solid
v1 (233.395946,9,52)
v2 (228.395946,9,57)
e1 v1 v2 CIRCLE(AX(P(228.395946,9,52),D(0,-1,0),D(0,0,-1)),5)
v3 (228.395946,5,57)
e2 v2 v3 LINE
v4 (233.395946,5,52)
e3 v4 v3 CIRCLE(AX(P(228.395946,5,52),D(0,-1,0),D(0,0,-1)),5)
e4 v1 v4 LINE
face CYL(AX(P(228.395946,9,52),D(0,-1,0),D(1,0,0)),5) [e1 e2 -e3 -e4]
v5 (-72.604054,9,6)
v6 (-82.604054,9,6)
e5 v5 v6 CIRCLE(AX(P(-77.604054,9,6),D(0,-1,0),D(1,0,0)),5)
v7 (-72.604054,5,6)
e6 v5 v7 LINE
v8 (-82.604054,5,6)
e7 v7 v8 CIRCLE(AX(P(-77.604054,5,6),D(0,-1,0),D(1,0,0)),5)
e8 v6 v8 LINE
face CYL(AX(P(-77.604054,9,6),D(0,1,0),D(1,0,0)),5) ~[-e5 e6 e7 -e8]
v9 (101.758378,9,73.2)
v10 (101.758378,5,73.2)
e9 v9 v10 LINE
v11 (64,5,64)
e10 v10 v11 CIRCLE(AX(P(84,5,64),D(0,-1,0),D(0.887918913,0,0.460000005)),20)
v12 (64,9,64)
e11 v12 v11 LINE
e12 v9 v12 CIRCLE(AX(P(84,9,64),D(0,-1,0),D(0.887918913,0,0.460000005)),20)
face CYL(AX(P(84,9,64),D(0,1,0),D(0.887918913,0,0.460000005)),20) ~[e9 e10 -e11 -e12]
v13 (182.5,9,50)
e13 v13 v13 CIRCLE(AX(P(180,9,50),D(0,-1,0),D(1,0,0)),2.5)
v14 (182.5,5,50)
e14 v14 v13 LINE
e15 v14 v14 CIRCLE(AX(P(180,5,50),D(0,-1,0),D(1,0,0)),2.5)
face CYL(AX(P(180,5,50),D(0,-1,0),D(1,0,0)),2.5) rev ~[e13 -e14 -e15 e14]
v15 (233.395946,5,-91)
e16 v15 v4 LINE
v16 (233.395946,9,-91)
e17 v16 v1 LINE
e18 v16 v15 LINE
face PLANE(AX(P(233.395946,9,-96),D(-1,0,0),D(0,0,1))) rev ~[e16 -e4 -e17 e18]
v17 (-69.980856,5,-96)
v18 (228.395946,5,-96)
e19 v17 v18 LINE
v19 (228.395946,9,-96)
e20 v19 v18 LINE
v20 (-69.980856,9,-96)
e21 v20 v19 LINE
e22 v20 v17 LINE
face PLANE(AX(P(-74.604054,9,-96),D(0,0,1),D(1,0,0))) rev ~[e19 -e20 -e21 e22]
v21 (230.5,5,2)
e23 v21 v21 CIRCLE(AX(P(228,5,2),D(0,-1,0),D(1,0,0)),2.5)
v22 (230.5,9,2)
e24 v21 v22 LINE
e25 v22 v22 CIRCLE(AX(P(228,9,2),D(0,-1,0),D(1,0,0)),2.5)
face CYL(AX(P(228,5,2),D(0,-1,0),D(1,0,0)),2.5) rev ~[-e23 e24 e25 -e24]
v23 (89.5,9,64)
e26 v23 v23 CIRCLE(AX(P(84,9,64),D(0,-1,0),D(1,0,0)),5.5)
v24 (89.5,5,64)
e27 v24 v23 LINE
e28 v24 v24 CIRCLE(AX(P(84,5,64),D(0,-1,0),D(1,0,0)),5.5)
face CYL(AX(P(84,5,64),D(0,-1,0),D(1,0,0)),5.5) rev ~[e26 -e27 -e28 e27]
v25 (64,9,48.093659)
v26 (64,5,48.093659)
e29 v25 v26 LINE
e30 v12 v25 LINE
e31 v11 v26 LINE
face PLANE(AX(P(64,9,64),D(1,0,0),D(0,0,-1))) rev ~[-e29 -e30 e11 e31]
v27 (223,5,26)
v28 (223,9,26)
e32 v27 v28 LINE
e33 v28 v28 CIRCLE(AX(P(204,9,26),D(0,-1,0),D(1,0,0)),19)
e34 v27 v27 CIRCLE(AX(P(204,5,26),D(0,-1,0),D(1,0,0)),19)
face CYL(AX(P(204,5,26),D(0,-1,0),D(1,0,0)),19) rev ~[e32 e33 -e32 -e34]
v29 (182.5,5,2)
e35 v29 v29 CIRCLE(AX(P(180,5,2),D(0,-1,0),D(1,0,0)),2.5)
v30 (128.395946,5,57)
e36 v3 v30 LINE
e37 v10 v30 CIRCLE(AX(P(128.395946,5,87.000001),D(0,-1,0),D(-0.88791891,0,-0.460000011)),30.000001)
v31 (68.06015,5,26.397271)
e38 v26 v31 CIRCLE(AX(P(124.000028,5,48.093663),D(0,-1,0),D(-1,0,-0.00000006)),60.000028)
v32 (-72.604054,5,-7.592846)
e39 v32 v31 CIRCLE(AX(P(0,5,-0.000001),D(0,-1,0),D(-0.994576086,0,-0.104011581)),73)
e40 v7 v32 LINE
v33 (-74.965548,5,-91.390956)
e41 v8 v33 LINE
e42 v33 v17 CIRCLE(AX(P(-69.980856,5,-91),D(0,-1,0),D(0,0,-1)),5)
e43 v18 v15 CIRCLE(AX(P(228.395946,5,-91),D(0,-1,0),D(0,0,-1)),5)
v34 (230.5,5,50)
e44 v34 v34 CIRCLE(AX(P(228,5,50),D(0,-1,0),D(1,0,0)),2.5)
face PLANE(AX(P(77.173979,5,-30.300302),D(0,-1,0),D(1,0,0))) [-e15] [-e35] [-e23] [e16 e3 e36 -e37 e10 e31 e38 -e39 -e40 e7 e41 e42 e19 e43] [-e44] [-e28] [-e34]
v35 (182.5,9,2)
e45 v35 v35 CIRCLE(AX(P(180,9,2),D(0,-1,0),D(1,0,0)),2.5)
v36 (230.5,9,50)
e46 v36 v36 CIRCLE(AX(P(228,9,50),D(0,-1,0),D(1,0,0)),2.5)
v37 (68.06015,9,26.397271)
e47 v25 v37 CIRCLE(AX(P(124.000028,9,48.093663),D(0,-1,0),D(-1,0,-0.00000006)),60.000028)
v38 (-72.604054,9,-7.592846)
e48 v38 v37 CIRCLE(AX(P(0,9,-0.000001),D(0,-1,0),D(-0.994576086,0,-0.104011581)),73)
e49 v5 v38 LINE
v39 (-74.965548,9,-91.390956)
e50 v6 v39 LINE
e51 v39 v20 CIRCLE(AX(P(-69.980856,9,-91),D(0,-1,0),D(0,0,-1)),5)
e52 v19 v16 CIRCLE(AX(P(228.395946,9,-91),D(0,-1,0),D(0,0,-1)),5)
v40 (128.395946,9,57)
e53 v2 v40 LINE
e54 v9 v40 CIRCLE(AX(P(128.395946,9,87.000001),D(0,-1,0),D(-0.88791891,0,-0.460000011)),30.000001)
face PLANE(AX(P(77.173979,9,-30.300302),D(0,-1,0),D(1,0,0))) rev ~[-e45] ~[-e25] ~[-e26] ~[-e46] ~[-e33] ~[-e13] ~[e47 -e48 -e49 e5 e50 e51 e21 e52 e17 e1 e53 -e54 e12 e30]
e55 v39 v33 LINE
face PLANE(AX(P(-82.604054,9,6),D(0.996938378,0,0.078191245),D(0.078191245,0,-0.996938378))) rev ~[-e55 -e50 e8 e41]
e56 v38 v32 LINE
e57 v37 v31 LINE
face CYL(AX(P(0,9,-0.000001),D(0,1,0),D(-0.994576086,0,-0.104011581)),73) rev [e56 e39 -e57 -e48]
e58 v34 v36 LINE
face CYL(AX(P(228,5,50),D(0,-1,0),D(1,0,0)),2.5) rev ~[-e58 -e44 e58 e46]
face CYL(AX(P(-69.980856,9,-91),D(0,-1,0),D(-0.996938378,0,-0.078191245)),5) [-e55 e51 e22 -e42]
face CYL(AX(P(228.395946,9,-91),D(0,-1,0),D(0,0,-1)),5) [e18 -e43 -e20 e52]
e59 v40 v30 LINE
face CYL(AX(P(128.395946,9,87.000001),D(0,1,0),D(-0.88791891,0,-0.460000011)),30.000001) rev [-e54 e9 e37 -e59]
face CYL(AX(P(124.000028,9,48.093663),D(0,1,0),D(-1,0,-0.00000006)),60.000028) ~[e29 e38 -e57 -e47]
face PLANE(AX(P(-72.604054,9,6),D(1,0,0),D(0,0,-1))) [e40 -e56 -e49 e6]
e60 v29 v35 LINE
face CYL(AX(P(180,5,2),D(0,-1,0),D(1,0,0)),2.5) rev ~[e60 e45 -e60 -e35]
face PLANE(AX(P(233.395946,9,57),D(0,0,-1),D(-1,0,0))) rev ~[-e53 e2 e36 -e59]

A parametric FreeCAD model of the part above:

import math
import FreeCAD as App
import Part
import Sketcher

V = App.Vector
Q = App.Units.Quantity


def edges_at(feature, points):
    """Names of the edges that pass closest to the given points."""
    edges = feature.Shape.Edges
    near = lambda p: min(range(len(edges)), key=lambda i: edges[i].distToShape(Part.Vertex(*p))[0])
    return sorted({f"Edge{near(p) + 1}" for p in points})

doc = App.newDocument("Part")
body = doc.addObject("PartDesign::Body", "Body")

# Sketch on XZ plane
sketch1 = body.newObject("Sketcher::SketchObject", "Sketch")
sketch1.AttachmentSupport = (doc.getObject("XZ_Plane"), [""])
sketch1.MapMode = "FlatFace"
sketch1.addGeometry([
    Part.LineSegment(V(-83, 6, 0), V(-75, -96, 0)),  # 0
    Part.LineSegment(V(-75, -96, 0), V(233, -96, 0)),  # 1
    Part.LineSegment(V(233, -96, 0), V(233, 57, 0)),  # 2
    Part.LineSegment(V(233, 57, 0), V(128, 57, 0)),  # 3
    Part.ArcOfCircle(Part.Circle(V(128, 87, 0), V(0, 0, 1), 30), math.radians(-153), math.radians(-90)),  # 4
    Part.ArcOfCircle(Part.Circle(V(84, 64, 0), V(0, 0, 1), 20), math.radians(27), math.radians(180)),  # 5
    Part.LineSegment(V(64, 64, 0), V(64, 48, 0)),  # 6
    Part.ArcOfCircle(Part.Circle(V(124, 48, 0), V(0, 0, 1), 60), math.radians(-180), math.radians(-159)),  # 7
    Part.ArcOfCircle(Part.Circle(V(0, 0, 0), V(0, 0, 1), 73), math.radians(-174), math.radians(21)),  # 8
    Part.LineSegment(V(-73, -8, 0), V(-73, 6, 0)),  # 9
    Part.ArcOfCircle(Part.Circle(V(-78, 6, 0), V(0, 0, 1), 5), math.radians(0), math.radians(180)),  # 10
], False)
sketch1.addConstraint([
    Sketcher.Constraint("Coincident", 0, 2, 1, 1),
    Sketcher.Constraint("Coincident", 1, 2, 2, 1),
    Sketcher.Constraint("Coincident", 2, 2, 3, 1),
    Sketcher.Constraint("Tangent", 3, 2, 4, 2),
    Sketcher.Constraint("Tangent", 4, 1, 5, 1),
    Sketcher.Constraint("Tangent", 5, 2, 6, 1),
    Sketcher.Constraint("Tangent", 6, 2, 7, 1),
    Sketcher.Constraint("Tangent", 7, 2, 8, 2),
    Sketcher.Constraint("Coincident", 8, 1, 9, 1),
    Sketcher.Constraint("Tangent", 9, 2, 10, 1),
    Sketcher.Constraint("Coincident", 10, 2, 0, 1),
    Sketcher.Constraint("Horizontal", 1),
    Sketcher.Constraint("Vertical", 2),
    Sketcher.Constraint("Horizontal", 3),
    Sketcher.Constraint("Vertical", 6),
    Sketcher.Constraint("Vertical", 9),
    Sketcher.Constraint("Coincident", 8, 3, -1, 1),
    Sketcher.Constraint("Horizontal", 9, 2, 10, 2),
    Sketcher.Constraint("Radius", 4, Q("30.000001 mm")),
    Sketcher.Constraint("Radius", 5, Q("20 mm")),
    Sketcher.Constraint("Radius", 8, Q("73 mm")),
    Sketcher.Constraint("Radius", 10, Q("5 mm")),
    Sketcher.Constraint("DistanceX", 1, 1, 1, 2, Q("308 mm")),
    Sketcher.Constraint("DistanceX", 3, 2, 3, 1, Q("105 mm")),
    Sketcher.Constraint("DistanceY", 2, 1, 2, 2, Q("153 mm")),
    Sketcher.Constraint("DistanceY", -1, 1, 4, 3, Q("87.000001 mm")),
    Sketcher.Constraint("DistanceX", -1, 1, 5, 3, Q("84 mm")),
    Sketcher.Constraint("DistanceY", -1, 1, 5, 3, Q("64 mm")),
    Sketcher.Constraint("DistanceY", -1, 1, 10, 3, Q("6 mm")),
    Sketcher.Constraint("DistanceX", 10, 3, 4, 3, Q("206 mm")),
    Sketcher.Constraint("Radius", 7, Q("60.000028 mm")),
])
pad1 = body.newObject("PartDesign::Pad", "Pad")
pad1.Profile = sketch1
pad1.Length = 4

# Sketch on XZ plane
sketch2 = body.newObject("Sketcher::SketchObject", "Sketch001")
sketch2.AttachmentSupport = (doc.getObject("XZ_Plane"), [""])
sketch2.MapMode = "FlatFace"
sketch2.AttachmentOffset = App.Placement(V(0, 0, 4), App.Rotation())
sketch2.addGeometry([
    Part.Circle(V(204, 26, 0), V(0, 0, 1), 19),  # 0
    Part.Circle(V(180, 50, 0), V(0, 0, 1), 2.5),  # 1
    Part.Circle(V(228, 50, 0), V(0, 0, 1), 2.5),  # 2
    Part.Circle(V(228, 2, 0), V(0, 0, 1), 2.5),  # 3
    Part.Circle(V(180, 2, 0), V(0, 0, 1), 2.5),  # 4
    Part.Circle(V(84, 64, 0), V(0, 0, 1), 5.5),  # 5
], False)
sketch2.addConstraint([
    Sketcher.Constraint("Equal", 1, 2),
    Sketcher.Constraint("Equal", 2, 3),
    Sketcher.Constraint("Equal", 3, 4),
    Sketcher.Constraint("Horizontal", 1, 3, 2, 3),
    Sketcher.Constraint("Horizontal", 3, 3, 4, 3),
    Sketcher.Constraint("Vertical", 2, 3, 3, 3),
    Sketcher.Constraint("Vertical", 1, 3, 4, 3),
    Sketcher.Constraint("Diameter", 0, Q("38 mm")),
    Sketcher.Constraint("Diameter", 1, Q("5 mm")),
    Sketcher.Constraint("Diameter", 5, Q("11 mm")),
    Sketcher.Constraint("DistanceX", -1, 1, 0, 3, Q("204 mm")),
    Sketcher.Constraint("DistanceY", -1, 1, 0, 3, Q("26 mm")),
    Sketcher.Constraint("DistanceX", -1, 1, 1, 3, Q("180 mm")),
    Sketcher.Constraint("DistanceY", -1, 1, 1, 3, Q("50 mm")),
    Sketcher.Constraint("DistanceX", -1, 1, 2, 3, Q("228 mm")),
    Sketcher.Constraint("DistanceY", -1, 1, 3, 3, Q("2 mm")),
    Sketcher.Constraint("DistanceX", -1, 1, 5, 3, Q("84 mm")),
    Sketcher.Constraint("DistanceY", -1, 1, 5, 3, Q("64 mm")),
])
pocket1 = body.newObject("PartDesign::Pocket", "Pocket")
pocket1.Profile = sketch2
pocket1.Type = "ThroughAll"
doc.recompute()

fillet = body.newObject("PartDesign::Fillet", "Fillet")
fillet.Base = (pocket1, edges_at(pocket1, [(233.396, -2, 57), (233.396, -2, -96), (-74.604, -2, -96)]))
fillet.Radius = 5
body2 = doc.addObject("PartDesign::Body", "Body001")
doc.recompute()

body.Placement = App.Placement(V(0, 9, 0), App.Rotation(V(0, 0, 1), 0))
boolean = body2.newObject("PartDesign::Boolean", "Boolean")
boolean.Type = "Fuse"
boolean.addObjects([body])

doc.recompute()
